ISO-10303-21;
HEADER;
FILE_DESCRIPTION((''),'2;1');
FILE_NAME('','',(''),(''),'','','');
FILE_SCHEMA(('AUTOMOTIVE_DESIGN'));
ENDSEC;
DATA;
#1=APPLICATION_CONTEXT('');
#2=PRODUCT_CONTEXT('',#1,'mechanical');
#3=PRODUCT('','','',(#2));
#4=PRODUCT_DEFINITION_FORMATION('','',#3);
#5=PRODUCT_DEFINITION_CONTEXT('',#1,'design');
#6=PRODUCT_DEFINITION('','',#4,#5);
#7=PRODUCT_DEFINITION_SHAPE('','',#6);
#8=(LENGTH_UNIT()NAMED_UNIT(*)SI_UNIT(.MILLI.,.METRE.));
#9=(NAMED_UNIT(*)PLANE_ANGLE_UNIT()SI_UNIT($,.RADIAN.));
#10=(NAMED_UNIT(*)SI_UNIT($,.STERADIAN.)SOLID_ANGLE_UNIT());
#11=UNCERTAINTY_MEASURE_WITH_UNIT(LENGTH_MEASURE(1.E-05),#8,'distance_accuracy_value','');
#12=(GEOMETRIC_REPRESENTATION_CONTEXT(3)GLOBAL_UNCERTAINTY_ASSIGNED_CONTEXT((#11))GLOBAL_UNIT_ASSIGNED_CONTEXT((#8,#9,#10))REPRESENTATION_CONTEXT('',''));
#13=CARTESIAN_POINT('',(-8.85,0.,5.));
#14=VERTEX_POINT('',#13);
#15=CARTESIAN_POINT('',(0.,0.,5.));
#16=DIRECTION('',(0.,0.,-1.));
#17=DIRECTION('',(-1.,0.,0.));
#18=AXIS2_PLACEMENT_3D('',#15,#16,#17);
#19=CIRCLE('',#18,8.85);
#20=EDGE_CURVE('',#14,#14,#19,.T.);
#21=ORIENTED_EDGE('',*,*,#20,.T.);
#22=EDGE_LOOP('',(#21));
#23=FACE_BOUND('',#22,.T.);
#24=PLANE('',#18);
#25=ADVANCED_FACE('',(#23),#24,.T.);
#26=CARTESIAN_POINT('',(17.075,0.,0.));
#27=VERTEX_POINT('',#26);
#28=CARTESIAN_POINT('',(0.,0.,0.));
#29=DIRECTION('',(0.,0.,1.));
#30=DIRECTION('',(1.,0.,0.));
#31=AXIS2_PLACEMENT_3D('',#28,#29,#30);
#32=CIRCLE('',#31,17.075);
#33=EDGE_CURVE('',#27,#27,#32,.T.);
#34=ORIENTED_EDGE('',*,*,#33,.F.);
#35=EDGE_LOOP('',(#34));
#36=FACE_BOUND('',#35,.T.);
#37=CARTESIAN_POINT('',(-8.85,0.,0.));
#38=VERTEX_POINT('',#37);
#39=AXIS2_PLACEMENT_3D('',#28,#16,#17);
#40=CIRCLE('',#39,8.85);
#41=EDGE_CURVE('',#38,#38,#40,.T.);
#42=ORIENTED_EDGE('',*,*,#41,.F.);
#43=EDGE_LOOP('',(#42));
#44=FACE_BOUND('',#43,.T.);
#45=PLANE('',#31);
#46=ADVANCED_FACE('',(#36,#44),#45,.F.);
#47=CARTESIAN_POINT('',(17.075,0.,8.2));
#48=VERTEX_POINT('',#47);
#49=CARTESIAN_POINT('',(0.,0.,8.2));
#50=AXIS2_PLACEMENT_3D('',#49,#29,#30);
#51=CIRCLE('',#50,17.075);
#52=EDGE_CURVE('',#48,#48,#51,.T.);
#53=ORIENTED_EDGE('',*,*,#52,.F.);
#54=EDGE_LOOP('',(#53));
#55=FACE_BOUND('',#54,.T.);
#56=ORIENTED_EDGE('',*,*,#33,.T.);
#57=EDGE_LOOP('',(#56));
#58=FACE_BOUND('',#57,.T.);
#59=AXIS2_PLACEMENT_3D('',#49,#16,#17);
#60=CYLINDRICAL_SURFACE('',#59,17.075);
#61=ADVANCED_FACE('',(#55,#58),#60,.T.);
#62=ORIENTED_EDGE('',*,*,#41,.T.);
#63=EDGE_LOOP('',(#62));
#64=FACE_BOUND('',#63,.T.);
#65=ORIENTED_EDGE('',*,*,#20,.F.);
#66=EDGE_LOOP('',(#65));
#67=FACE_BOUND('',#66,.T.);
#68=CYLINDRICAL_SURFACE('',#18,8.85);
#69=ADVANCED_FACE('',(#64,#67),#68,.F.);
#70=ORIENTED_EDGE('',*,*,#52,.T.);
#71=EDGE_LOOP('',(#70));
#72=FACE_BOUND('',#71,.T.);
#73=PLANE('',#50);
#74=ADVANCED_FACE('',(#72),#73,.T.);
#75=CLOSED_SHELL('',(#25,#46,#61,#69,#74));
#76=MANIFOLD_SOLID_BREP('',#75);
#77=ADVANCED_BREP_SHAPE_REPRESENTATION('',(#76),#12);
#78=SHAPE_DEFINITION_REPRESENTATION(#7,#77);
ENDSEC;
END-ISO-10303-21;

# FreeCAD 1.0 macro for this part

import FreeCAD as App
import Part
import Sketcher
from FreeCAD import Vector

doc = App.newDocument("Part")
body = doc.addObject("PartDesign::Body", "Body")

# Sketch on XY plane
sketch1 = doc.addObject("Sketcher::SketchObject", "Sketch")
body.addObject(sketch1)
sketch1.AttachmentSupport = (doc.XY_Plane, [""])
sketch1.MapMode = "FlatFace"
sketch1.addGeometry(Part.Circle(Vector(0, 0, 0), Vector(0, 0, 1), 17.075), False)
sketch1.addConstraint(Sketcher.Constraint("Coincident", 0, 3, -1, 1))
sketch1.addConstraint(Sketcher.Constraint("Diameter", 0, 34.15))
pad1 = doc.addObject("PartDesign::Pad", "Pad")
body.addObject(pad1)
pad1.Profile = sketch1
pad1.Length = 8.2

# Sketch on XY plane
sketch2 = doc.addObject("Sketcher::SketchObject", "Sketch001")
body.addObject(sketch2)
sketch2.AttachmentSupport = (doc.XY_Plane, [""])
sketch2.MapMode = "FlatFace"
sketch2.addGeometry(Part.Circle(Vector(0, 0, 0), Vector(0, 0, 1), 8.85), False)
sketch2.addConstraint(Sketcher.Constraint("Coincident", 0, 3, -1, 1))
sketch2.addConstraint(Sketcher.Constraint("Diameter", 0, 17.7))
pocket1 = doc.addObject("PartDesign::Pocket", "Pocket")
body.addObject(pocket1)
pocket1.Profile = sketch2
pocket1.Length = 5
pocket1.Reversed = True

doc.recompute()
